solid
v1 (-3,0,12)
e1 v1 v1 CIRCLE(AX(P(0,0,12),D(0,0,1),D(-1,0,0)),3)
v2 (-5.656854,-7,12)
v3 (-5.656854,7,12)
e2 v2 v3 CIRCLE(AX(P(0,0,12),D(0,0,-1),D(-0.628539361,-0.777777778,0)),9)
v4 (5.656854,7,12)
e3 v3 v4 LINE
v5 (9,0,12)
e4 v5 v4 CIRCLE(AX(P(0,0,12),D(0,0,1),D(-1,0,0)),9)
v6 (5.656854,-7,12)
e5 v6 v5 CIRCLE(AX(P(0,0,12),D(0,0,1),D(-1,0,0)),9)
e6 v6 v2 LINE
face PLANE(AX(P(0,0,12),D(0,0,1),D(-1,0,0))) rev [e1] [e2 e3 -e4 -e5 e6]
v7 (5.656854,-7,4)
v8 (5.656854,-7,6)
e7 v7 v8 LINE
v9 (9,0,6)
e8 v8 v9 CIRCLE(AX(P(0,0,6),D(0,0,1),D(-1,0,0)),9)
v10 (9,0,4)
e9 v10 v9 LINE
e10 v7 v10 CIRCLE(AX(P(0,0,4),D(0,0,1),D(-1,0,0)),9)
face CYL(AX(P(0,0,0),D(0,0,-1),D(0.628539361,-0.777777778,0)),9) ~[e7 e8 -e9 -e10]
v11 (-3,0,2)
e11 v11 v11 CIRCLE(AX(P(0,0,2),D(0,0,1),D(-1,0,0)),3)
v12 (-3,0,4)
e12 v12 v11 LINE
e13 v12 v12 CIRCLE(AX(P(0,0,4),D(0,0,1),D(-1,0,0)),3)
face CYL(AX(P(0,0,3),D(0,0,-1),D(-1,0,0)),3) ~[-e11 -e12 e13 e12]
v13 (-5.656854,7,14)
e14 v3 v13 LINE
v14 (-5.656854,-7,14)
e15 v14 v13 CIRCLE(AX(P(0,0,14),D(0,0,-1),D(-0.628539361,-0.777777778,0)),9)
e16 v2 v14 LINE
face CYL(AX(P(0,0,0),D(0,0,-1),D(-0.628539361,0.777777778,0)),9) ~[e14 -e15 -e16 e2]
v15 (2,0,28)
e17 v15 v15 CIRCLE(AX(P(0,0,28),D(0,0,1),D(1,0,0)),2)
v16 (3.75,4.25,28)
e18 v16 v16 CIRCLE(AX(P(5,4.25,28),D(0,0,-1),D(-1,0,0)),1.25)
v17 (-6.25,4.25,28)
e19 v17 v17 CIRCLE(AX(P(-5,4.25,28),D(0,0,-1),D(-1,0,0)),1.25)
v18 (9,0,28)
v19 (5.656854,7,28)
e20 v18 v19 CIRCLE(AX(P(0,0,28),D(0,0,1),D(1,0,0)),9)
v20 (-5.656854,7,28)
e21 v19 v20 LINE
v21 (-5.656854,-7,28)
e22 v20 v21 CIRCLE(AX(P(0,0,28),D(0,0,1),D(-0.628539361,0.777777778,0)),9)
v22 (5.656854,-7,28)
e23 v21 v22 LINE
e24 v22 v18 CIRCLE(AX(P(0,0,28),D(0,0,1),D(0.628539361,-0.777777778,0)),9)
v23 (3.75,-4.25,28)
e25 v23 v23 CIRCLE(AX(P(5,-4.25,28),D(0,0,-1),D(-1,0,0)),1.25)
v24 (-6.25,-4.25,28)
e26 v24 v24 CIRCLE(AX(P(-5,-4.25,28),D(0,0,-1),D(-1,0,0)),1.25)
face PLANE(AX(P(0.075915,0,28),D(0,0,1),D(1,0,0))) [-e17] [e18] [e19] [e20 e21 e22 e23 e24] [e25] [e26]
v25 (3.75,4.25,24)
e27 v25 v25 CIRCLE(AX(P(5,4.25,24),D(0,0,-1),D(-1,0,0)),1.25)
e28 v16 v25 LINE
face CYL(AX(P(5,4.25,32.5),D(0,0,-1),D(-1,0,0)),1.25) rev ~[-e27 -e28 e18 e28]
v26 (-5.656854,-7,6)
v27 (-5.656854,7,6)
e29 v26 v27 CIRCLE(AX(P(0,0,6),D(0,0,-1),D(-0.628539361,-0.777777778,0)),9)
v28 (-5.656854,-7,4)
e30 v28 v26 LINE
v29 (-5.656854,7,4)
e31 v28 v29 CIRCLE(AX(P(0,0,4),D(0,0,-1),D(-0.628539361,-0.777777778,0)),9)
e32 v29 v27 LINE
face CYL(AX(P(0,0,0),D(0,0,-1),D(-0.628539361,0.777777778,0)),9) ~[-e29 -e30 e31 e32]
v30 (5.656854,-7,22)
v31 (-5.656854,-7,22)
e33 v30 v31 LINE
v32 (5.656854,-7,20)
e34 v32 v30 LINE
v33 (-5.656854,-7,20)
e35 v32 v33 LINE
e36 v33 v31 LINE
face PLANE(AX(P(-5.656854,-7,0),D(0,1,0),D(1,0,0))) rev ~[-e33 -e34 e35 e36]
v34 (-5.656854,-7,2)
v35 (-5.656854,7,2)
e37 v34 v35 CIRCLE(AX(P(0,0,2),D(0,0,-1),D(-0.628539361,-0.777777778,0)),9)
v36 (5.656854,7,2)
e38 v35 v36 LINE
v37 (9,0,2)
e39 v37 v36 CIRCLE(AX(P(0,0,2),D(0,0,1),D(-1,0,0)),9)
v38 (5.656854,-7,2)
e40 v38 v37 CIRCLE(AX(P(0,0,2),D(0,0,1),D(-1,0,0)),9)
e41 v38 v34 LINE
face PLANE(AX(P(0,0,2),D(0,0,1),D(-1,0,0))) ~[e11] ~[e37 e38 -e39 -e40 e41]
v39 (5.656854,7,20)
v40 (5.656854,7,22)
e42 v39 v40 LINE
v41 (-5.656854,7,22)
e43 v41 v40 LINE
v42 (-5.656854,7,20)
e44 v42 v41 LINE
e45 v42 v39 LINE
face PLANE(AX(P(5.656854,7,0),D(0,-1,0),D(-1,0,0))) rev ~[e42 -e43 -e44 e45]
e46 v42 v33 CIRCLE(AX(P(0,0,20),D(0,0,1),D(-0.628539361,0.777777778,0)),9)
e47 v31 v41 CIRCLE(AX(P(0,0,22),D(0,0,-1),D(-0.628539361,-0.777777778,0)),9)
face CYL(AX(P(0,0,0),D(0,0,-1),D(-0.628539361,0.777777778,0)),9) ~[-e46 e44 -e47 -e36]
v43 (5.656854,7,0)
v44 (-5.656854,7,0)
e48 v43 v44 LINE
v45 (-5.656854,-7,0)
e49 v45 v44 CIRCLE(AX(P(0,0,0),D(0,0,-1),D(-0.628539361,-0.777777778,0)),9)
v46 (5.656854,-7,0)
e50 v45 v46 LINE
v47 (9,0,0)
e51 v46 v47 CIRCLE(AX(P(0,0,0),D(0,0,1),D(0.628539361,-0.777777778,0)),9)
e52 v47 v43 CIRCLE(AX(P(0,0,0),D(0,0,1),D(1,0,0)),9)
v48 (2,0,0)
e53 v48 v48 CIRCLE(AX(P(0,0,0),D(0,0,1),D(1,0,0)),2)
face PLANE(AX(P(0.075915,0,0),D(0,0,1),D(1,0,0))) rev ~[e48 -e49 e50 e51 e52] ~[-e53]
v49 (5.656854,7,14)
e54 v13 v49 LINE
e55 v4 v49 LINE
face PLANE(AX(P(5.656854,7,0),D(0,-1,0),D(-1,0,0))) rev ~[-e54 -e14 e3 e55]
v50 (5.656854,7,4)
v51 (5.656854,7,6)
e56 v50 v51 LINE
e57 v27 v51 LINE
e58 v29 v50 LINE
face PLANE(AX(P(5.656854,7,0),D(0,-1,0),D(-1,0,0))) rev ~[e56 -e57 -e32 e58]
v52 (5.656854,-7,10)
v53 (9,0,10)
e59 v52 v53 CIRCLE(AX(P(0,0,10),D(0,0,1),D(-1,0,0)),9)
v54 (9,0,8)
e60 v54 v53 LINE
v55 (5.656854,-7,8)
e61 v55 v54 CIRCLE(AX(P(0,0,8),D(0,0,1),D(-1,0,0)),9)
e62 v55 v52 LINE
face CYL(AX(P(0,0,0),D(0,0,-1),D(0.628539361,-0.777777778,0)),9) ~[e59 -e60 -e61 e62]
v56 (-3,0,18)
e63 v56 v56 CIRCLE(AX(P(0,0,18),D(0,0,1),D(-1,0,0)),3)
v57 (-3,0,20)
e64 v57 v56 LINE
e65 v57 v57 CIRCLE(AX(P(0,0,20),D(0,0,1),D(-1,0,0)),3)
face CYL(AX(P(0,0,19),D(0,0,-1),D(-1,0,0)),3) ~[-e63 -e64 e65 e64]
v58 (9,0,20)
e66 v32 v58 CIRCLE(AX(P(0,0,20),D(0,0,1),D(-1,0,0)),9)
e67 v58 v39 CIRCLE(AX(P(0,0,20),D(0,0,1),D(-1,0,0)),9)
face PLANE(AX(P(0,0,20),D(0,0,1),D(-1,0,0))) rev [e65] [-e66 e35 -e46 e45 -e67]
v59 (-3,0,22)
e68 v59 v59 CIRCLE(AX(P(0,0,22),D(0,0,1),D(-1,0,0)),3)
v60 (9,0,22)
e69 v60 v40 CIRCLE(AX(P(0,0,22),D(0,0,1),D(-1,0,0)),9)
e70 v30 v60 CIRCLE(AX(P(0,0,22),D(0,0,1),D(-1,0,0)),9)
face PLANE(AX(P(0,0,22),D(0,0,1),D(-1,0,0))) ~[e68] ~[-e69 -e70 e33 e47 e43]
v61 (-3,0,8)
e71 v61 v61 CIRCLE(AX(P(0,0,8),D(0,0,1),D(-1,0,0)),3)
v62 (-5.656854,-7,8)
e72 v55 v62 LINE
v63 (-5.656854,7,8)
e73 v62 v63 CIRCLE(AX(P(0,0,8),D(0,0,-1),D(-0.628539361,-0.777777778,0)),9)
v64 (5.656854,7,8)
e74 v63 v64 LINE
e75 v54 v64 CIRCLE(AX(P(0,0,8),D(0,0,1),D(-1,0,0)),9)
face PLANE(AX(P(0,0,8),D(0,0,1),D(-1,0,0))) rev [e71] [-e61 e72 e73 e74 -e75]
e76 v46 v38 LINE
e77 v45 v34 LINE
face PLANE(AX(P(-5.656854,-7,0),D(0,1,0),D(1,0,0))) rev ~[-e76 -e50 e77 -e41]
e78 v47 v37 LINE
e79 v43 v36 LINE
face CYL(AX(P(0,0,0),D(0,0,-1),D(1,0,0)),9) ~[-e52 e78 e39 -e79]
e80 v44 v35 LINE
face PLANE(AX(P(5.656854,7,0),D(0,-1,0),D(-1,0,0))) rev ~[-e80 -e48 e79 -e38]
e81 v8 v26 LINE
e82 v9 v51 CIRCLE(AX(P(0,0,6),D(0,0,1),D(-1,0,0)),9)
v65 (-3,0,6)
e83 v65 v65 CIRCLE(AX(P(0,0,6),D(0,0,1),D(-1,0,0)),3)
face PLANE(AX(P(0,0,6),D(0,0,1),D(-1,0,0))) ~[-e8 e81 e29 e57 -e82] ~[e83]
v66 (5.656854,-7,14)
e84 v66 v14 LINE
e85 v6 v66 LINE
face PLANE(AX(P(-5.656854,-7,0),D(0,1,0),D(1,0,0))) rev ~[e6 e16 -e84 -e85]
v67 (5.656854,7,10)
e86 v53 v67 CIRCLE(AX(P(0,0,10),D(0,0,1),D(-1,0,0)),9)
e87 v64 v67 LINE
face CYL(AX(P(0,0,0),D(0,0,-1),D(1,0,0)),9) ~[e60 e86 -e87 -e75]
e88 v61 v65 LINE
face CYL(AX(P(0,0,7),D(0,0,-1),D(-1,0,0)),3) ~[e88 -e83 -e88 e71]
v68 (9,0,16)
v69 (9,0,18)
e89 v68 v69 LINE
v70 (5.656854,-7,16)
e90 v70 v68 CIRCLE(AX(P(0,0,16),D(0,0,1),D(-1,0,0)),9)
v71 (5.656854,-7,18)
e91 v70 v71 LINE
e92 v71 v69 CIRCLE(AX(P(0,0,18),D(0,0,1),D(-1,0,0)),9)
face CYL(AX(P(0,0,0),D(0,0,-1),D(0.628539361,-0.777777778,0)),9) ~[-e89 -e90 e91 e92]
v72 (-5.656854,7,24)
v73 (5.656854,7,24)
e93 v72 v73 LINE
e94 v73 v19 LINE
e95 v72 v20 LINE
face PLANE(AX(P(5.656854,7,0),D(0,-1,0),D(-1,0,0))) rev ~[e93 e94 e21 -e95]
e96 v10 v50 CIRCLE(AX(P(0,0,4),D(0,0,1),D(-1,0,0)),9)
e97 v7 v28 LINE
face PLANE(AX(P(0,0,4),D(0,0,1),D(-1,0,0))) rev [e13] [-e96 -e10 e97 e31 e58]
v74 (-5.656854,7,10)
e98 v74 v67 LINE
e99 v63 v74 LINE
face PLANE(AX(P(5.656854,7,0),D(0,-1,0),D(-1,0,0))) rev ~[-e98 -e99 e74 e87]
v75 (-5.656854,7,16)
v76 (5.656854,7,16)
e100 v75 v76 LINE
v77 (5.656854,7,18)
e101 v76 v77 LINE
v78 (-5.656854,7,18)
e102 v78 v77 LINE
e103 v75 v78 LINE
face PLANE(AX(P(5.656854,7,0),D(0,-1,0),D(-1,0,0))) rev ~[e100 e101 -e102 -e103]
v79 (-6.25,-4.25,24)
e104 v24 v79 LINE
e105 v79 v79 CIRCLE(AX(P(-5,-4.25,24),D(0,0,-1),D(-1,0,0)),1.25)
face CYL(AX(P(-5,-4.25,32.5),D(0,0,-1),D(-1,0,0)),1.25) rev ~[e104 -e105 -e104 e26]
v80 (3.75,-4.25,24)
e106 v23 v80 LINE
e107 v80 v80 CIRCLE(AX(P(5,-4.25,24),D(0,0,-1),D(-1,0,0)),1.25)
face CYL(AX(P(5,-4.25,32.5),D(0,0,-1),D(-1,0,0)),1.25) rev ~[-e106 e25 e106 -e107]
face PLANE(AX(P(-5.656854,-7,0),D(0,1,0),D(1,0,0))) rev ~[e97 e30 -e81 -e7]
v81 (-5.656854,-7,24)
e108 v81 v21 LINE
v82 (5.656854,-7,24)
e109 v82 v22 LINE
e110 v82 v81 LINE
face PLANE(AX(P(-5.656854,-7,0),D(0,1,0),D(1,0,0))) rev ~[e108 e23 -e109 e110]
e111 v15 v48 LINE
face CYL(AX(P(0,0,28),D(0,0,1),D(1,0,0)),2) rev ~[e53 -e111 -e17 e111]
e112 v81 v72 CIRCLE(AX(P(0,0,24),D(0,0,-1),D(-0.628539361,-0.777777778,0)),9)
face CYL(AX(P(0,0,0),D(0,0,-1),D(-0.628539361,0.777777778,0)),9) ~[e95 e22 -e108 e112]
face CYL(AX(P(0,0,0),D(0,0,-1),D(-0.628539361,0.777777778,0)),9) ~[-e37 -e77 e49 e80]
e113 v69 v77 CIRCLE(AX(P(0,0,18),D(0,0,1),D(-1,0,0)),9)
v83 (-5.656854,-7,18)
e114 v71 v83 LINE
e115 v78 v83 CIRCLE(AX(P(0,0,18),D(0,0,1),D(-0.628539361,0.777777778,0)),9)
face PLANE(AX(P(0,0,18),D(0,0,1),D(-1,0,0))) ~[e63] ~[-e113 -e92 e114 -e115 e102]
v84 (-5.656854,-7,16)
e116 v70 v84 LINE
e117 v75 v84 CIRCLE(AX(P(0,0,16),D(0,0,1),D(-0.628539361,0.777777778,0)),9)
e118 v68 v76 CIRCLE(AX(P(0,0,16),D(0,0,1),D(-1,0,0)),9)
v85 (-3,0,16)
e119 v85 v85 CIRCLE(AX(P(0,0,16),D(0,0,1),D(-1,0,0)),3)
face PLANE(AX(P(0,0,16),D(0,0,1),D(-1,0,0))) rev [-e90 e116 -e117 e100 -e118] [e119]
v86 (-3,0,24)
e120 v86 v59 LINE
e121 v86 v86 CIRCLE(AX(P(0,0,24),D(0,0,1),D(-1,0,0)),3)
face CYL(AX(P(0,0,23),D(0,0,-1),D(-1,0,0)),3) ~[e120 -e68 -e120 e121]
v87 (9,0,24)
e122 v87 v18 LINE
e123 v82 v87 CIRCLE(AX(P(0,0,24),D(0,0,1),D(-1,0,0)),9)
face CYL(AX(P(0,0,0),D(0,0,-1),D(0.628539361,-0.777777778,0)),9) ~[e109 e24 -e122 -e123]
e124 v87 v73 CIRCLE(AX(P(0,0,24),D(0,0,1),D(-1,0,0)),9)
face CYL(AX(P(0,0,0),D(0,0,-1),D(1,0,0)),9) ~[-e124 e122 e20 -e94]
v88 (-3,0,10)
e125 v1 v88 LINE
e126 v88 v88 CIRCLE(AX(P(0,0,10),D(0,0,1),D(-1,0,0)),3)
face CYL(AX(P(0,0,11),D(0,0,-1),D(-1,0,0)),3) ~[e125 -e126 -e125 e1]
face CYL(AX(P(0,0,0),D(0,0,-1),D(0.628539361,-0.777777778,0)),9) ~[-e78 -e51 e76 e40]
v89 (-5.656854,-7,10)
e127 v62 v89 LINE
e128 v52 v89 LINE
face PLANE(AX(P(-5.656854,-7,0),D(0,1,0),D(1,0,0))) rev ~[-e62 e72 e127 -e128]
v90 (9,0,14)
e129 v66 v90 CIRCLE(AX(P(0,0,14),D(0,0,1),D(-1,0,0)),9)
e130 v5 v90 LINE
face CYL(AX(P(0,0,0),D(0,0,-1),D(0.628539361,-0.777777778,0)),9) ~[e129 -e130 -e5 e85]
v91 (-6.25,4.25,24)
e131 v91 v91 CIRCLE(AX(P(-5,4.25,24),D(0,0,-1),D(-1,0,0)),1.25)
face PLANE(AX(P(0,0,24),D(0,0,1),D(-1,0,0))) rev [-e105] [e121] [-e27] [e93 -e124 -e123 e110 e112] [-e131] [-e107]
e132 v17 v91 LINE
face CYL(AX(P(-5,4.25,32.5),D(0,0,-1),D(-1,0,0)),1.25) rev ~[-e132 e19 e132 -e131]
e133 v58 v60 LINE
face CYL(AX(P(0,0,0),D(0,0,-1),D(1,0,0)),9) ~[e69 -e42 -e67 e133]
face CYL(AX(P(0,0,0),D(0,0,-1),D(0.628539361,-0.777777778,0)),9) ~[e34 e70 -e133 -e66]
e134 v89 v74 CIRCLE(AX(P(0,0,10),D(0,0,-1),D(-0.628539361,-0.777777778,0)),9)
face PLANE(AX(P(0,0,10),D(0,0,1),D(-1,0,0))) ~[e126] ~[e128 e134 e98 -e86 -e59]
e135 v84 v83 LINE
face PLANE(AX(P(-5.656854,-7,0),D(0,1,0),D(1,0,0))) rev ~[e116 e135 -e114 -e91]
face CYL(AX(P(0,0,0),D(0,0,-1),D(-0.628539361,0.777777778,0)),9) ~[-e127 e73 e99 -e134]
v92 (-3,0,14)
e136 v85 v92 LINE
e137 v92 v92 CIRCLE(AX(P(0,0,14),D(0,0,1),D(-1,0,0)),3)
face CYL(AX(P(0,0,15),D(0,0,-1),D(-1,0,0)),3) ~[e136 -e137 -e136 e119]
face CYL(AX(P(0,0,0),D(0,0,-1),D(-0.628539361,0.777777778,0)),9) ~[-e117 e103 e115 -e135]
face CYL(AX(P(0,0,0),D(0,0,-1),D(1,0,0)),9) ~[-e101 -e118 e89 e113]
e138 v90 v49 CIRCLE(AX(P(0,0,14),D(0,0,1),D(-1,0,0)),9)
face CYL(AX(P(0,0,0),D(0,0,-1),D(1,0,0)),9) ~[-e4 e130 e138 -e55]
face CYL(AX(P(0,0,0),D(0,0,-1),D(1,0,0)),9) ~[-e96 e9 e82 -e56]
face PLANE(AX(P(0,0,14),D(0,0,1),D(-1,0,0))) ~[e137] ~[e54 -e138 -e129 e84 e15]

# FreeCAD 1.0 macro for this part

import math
import FreeCAD as App
import Part
import Sketcher

doc = App.newDocument("Part")
params = doc.addObject("Spreadsheet::Sheet", "Params")
for row, (alias, value) in enumerate([
    ("sketch1_radius", "9 mm"),
    ("pad1_length", "28 mm"),
    ("sketch2_diameter", "2.5 mm"),
    ("hole_diameter", "2.5 mm"),
    ("hole_depth", "4.5 mm"),
    ("sketch3_diameter", "4 mm"),
    ("sketch4_width", "6 mm"),
    ("sketch4_height", "2 mm"),
    ("groove_angle", "360 deg"),
    ("linearpattern_pitch", "4 mm"),
], start=1):
    params.set(f"A{row}", alias)
    params.set(f"B{row}", "=" + value)
    params.setAlias(f"B{row}", alias)

body = doc.addObject("PartDesign::Body", "Body")

sketch1 = body.newObject("Sketcher::SketchObject", "Sketch")
sketch1.AttachmentSupport = (doc.getObject("XY_Plane"), [""])
sketch1.MapMode = "FlatFace"
sketch1.addGeometry([
    Part.LineSegment(App.Vector(6, 7, 0), App.Vector(-6, 7, 0)),
    Part.ArcOfCircle(Part.Circle(App.Vector(0, 0, 0), App.Vector(0, 0, 1), 9), math.radians(129), math.radians(231)),
    Part.LineSegment(App.Vector(-6, -7, 0), App.Vector(6, -7, 0)),
    Part.ArcOfCircle(Part.Circle(App.Vector(0, 0, 0), App.Vector(0, 0, 1), 9), math.radians(-51), math.radians(0)),
    Part.ArcOfCircle(Part.Circle(App.Vector(0, 0, 0), App.Vector(0, 0, 1), 9), math.radians(0), math.radians(51)),
], False)
sketch1.addConstraint([
    Sketcher.Constraint("Coincident", 0, 2, 1, 1),
    Sketcher.Constraint("Coincident", 1, 2, 2, 1),
    Sketcher.Constraint("Coincident", 2, 2, 3, 1),
    Sketcher.Constraint("Tangent", 3, 2, 4, 1),
    Sketcher.Constraint("Coincident", 4, 2, 0, 1),
    Sketcher.Constraint("Horizontal", 0),
    Sketcher.Constraint("Horizontal", 2),
    Sketcher.Constraint("Coincident", 1, 3, -1, 1),
    Sketcher.Constraint("Coincident", 3, 3, -1, 1),
    Sketcher.Constraint("Equal", 1, 3),
    Sketcher.Constraint("Equal", 3, 4),
    Sketcher.Constraint("PointOnObject", 3, 2, -1),
    Sketcher.Constraint("Vertical", 0, 2, 1, 2),
    Sketcher.Constraint("Radius", 1, 9.0),
    Sketcher.Constraint("DistanceY", -1, 1, 0, 2, 7.0),
])
sketch1.setExpression("Constraints[13]", "Params.sketch1_radius")
pad1 = body.newObject("PartDesign::Pad", "Pad")
pad1.Profile = sketch1
pad1.setExpression("Length", "Params.pad1_length")

sketch2 = body.newObject("Sketcher::SketchObject", "Sketch001")
sketch2.AttachmentSupport = (doc.getObject("XY_Plane"), [""])
sketch2.MapMode = "FlatFace"
sketch2.AttachmentOffset = App.Placement(App.Vector(0, 0, 28), App.Rotation())
sketch2.addGeometry([
    Part.Circle(App.Vector(-5, 4.2, 0), App.Vector(0, 0, 1), 1.2),
    Part.Circle(App.Vector(5, 4.2, 0), App.Vector(0, 0, 1), 1.2),
    Part.Circle(App.Vector(-5, -4.2, 0), App.Vector(0, 0, 1), 1.2),
    Part.Circle(App.Vector(5, -4.2, 0), App.Vector(0, 0, 1), 1.2),
], False)
sketch2.addConstraint([
    Sketcher.Constraint("Equal", 0, 1),
    Sketcher.Constraint("Equal", 1, 2),
    Sketcher.Constraint("Equal", 2, 3),
    Sketcher.Constraint("Symmetric", 1, 3, 2, 3, -1, 1),
    Sketcher.Constraint("Symmetric", 0, 3, 3, 3, -1, 1),
    Sketcher.Constraint("Symmetric", 0, 3, 1, 3, -2),
    Sketcher.Constraint("Diameter", 0, 2.5),
    Sketcher.Constraint("DistanceX", 0, 3, -1, 1, 5.0),
    Sketcher.Constraint("DistanceY", 2, 3, 0, 3, 8.5),
])
sketch2.setExpression("Constraints[6]", "Params.sketch2_diameter")
doc.recompute()
hole = body.newObject("PartDesign::Hole", "Hole")
hole.Profile = sketch2
hole.ThreadType = "None"
hole.setExpression("Diameter", "Params.hole_diameter")
hole.DepthType = "Dimension"
hole.setExpression("Depth", "Params.hole_depth")
hole.DrillPoint = "Angled"
hole.DrillPointAngle = 118

sketch3 = body.newObject("Sketcher::SketchObject", "Sketch002")
sketch3.AttachmentSupport = (doc.getObject("XY_Plane"), [""])
sketch3.MapMode = "FlatFace"
sketch3.AttachmentOffset = App.Placement(App.Vector(0, 0, 28), App.Rotation())
sketch3.addGeometry(Part.Circle(App.Vector(0, 0, 0), App.Vector(0, 0, 1), 2), False)
sketch3.addConstraint([
    Sketcher.Constraint("Coincident", 0, 3, -1, 1),
    Sketcher.Constraint("Diameter", 0, 4.0),
])
sketch3.setExpression("Constraints[1]", "Params.sketch3_diameter")
pocket1 = body.newObject("PartDesign::Pocket", "Pocket")
pocket1.Profile = sketch3
pocket1.Type = "ThroughAll"

sketch4 = body.newObject("Sketcher::SketchObject", "Sketch003")
sketch4.AttachmentSupport = (doc.getObject("XZ_Plane"), [""])
sketch4.MapMode = "FlatFace"
sketch4.addGeometry([
    Part.LineSegment(App.Vector(3, 22, 0), App.Vector(3, 24, 0)),
    Part.LineSegment(App.Vector(3, 24, 0), App.Vector(9, 24, 0)),
    Part.LineSegment(App.Vector(9, 24, 0), App.Vector(9, 22, 0)),
    Part.LineSegment(App.Vector(9, 22, 0), App.Vector(3, 22, 0)),
], False)
sketch4.addConstraint([
    Sketcher.Constraint("Coincident", 0, 2, 1, 1),
    Sketcher.Constraint("Coincident", 1, 2, 2, 1),
    Sketcher.Constraint("Coincident", 2, 2, 3, 1),
    Sketcher.Constraint("Coincident", 3, 2, 0, 1),
    Sketcher.Constraint("Vertical", 0),
    Sketcher.Constraint("Horizontal", 1),
    Sketcher.Constraint("Vertical", 2),
    Sketcher.Constraint("Horizontal", 3),
    Sketcher.Constraint("DistanceX", 1, 1, 1, 2, 6.0),
    Sketcher.Constraint("DistanceY", 0, 1, 0, 2, 2.0),
    Sketcher.Constraint("DistanceX", -1, 1, 0, 2, 3.0),
    Sketcher.Constraint("DistanceY", -1, 1, 0, 2, 24.0),
])
sketch4.setExpression("Constraints[8]", "Params.sketch4_width")
sketch4.setExpression("Constraints[9]", "Params.sketch4_height")
groove = body.newObject("PartDesign::Groove", "Groove")
groove.Profile = sketch4
groove.ReferenceAxis = (sketch4, ["V_Axis"])
groove.setExpression("Angle", "Params.groove_angle")
doc.recompute()

linearpattern = body.newObject("PartDesign::LinearPattern", "LinearPattern")
linearpattern.Originals = [groove]
linearpattern.Direction = (doc.getObject("Z_Axis"), [""])
linearpattern.Mode = "offset"
linearpattern.setExpression("Offset", "Params.linearpattern_pitch")
linearpattern.Occurrences = 7
linearpattern.Reversed = True
body.Tip = linearpattern

doc.recompute()
